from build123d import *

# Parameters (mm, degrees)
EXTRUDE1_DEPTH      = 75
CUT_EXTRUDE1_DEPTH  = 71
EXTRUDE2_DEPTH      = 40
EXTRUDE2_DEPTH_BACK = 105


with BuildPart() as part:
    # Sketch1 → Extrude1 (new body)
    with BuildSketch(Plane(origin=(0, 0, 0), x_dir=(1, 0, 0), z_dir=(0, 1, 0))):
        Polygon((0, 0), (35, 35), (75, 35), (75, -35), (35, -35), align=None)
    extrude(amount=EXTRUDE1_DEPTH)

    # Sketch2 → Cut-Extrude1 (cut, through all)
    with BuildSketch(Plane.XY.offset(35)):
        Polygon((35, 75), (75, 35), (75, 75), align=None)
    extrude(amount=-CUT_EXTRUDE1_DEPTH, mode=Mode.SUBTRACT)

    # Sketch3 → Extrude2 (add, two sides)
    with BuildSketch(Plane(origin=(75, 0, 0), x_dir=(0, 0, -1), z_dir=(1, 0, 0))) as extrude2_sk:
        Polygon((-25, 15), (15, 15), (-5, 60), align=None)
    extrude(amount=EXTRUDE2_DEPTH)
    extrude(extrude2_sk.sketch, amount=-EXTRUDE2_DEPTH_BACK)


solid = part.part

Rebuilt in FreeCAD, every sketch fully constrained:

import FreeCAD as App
import Part
import Sketcher
from FreeCAD import Vector
Q = App.Units.Quantity


def add_polygon(sketch, points):
    """Adds a closed chain of lines whose ends are joined by coincident constraints."""
    first, n = sketch.GeometryCount, len(points)
    for a, b in zip(points, points[1:] + points[:1]):
        sketch.addGeometry(Part.LineSegment(App.Vector(*a, 0), App.Vector(*b, 0)), False)
    for i in range(n):
        sketch.addConstraint(Sketcher.Constraint("Coincident", first + i, 2, first + (i + 1) % n, 1))

doc = App.newDocument("Part")
params = doc.addObject("Spreadsheet::Sheet", "Params")
for row, (alias, value) in enumerate([
    ("sketch1_width", "40 mm"),
    ("sketch1_height", "70 mm"),
    ("pad1_length", "75 mm"),
    ("sketch2_width", "40 mm"),
    ("sketch3_height", "40 mm"),
    ("pad2_length", "40 mm"),
    ("pad2_length2", "105 mm"),
], start=1):
    params.set(f"A{row}", alias)
    params.set(f"B{row}", "=" + value)
    params.setAlias(f"B{row}", alias)

body = doc.addObject("PartDesign::Body", "Body")

# Sketch on XZ plane
sketch1 = body.newObject("Sketcher::SketchObject", "Sketch")
sketch1.AttachmentSupport = (doc.getObject("XZ_Plane"), [""])
sketch1.MapMode = "FlatFace"
add_polygon(sketch1, [(35, -35), (0, 0), (35, 35), (75, 35), (75, -35)])  # lines 0-4
sketch1.addConstraint([
    Sketcher.Constraint("Horizontal", 2),
    Sketcher.Constraint("Vertical", 3),
    Sketcher.Constraint("Horizontal", 4),
    Sketcher.Constraint("Coincident", 0, 2, -1, 1),
    Sketcher.Constraint("Symmetric", 1, 2, 4, 2, -1),
    Sketcher.Constraint("Perpendicular", 0, 1),
    Sketcher.Constraint("DistanceX", 2, 1, 2, 2, Q("40 mm")),
    Sketcher.Constraint("DistanceY", 3, 2, 3, 1, Q("70 mm")),
])
sketch1.setExpression("Constraints[11]", "Params.sketch1_width")
sketch1.setExpression("Constraints[12]", "Params.sketch1_height")
pad1 = body.newObject("PartDesign::Pad", "Pad")
pad1.Profile = sketch1
pad1.setExpression("Length", "Params.pad1_length")
pad1.Reversed = True

# Sketch on XY plane
sketch2 = body.newObject("Sketcher::SketchObject", "Sketch001")
sketch2.AttachmentSupport = (doc.getObject("XY_Plane"), [""])
sketch2.MapMode = "FlatFace"
sketch2.AttachmentOffset = App.Placement(Vector(0, 0, 35), App.Rotation())
add_polygon(sketch2, [(35, 75), (75, 35), (75, 75)])  # lines 0-2
sketch2.addConstraint([
    Sketcher.Constraint("Vertical", 1),
    Sketcher.Constraint("Horizontal", 2),
    Sketcher.Constraint("Equal", 2, 1),
    Sketcher.Constraint("DistanceX", 2, 2, 2, 1, Q("40 mm")),
    Sketcher.Constraint("DistanceX", -1, 1, 0, 2, Q("75 mm")),
    Sketcher.Constraint("DistanceY", -1, 1, 0, 2, Q("35 mm")),
])
sketch2.setExpression("Constraints[6]", "Params.sketch2_width")
pocket1 = body.newObject("PartDesign::Pocket", "Pocket")
pocket1.Profile = sketch2
pocket1.Type = "ThroughAll"

# Sketch on YZ plane
sketch3 = body.newObject("Sketcher::SketchObject", "Sketch002")
sketch3.AttachmentSupport = (doc.getObject("YZ_Plane"), [""])
sketch3.MapMode = "FlatFace"
sketch3.AttachmentOffset = App.Placement(Vector(0, 0, 75), App.Rotation())
add_polygon(sketch3, [(15, 25), (15, -15), (60, 5)])  # lines 0-2
sketch3.addConstraint([
    Sketcher.Constraint("Vertical", 0),
    Sketcher.Constraint("Equal", 1, 2),
    Sketcher.Constraint("DistanceY", 0, 2, 0, 1, Q("40 mm")),
    Sketcher.Constraint("DistanceX", -1, 1, 0, 2, Q("15 mm")),
    Sketcher.Constraint("DistanceY", 0, 2, -1, 1, Q("15 mm")),
    Sketcher.Constraint("DistanceX", -1, 1, 1, 2, Q("60 mm")),
])
sketch3.setExpression("Constraints[5]", "Params.sketch3_height")
pad2 = body.newObject("PartDesign::Pad", "Pad001")
pad2.Profile = sketch3
pad2.Type = "TwoLengths"
pad2.setExpression("Length", "Params.pad2_length")
pad2.setExpression("Length2", "Params.pad2_length2")

doc.recompute()
